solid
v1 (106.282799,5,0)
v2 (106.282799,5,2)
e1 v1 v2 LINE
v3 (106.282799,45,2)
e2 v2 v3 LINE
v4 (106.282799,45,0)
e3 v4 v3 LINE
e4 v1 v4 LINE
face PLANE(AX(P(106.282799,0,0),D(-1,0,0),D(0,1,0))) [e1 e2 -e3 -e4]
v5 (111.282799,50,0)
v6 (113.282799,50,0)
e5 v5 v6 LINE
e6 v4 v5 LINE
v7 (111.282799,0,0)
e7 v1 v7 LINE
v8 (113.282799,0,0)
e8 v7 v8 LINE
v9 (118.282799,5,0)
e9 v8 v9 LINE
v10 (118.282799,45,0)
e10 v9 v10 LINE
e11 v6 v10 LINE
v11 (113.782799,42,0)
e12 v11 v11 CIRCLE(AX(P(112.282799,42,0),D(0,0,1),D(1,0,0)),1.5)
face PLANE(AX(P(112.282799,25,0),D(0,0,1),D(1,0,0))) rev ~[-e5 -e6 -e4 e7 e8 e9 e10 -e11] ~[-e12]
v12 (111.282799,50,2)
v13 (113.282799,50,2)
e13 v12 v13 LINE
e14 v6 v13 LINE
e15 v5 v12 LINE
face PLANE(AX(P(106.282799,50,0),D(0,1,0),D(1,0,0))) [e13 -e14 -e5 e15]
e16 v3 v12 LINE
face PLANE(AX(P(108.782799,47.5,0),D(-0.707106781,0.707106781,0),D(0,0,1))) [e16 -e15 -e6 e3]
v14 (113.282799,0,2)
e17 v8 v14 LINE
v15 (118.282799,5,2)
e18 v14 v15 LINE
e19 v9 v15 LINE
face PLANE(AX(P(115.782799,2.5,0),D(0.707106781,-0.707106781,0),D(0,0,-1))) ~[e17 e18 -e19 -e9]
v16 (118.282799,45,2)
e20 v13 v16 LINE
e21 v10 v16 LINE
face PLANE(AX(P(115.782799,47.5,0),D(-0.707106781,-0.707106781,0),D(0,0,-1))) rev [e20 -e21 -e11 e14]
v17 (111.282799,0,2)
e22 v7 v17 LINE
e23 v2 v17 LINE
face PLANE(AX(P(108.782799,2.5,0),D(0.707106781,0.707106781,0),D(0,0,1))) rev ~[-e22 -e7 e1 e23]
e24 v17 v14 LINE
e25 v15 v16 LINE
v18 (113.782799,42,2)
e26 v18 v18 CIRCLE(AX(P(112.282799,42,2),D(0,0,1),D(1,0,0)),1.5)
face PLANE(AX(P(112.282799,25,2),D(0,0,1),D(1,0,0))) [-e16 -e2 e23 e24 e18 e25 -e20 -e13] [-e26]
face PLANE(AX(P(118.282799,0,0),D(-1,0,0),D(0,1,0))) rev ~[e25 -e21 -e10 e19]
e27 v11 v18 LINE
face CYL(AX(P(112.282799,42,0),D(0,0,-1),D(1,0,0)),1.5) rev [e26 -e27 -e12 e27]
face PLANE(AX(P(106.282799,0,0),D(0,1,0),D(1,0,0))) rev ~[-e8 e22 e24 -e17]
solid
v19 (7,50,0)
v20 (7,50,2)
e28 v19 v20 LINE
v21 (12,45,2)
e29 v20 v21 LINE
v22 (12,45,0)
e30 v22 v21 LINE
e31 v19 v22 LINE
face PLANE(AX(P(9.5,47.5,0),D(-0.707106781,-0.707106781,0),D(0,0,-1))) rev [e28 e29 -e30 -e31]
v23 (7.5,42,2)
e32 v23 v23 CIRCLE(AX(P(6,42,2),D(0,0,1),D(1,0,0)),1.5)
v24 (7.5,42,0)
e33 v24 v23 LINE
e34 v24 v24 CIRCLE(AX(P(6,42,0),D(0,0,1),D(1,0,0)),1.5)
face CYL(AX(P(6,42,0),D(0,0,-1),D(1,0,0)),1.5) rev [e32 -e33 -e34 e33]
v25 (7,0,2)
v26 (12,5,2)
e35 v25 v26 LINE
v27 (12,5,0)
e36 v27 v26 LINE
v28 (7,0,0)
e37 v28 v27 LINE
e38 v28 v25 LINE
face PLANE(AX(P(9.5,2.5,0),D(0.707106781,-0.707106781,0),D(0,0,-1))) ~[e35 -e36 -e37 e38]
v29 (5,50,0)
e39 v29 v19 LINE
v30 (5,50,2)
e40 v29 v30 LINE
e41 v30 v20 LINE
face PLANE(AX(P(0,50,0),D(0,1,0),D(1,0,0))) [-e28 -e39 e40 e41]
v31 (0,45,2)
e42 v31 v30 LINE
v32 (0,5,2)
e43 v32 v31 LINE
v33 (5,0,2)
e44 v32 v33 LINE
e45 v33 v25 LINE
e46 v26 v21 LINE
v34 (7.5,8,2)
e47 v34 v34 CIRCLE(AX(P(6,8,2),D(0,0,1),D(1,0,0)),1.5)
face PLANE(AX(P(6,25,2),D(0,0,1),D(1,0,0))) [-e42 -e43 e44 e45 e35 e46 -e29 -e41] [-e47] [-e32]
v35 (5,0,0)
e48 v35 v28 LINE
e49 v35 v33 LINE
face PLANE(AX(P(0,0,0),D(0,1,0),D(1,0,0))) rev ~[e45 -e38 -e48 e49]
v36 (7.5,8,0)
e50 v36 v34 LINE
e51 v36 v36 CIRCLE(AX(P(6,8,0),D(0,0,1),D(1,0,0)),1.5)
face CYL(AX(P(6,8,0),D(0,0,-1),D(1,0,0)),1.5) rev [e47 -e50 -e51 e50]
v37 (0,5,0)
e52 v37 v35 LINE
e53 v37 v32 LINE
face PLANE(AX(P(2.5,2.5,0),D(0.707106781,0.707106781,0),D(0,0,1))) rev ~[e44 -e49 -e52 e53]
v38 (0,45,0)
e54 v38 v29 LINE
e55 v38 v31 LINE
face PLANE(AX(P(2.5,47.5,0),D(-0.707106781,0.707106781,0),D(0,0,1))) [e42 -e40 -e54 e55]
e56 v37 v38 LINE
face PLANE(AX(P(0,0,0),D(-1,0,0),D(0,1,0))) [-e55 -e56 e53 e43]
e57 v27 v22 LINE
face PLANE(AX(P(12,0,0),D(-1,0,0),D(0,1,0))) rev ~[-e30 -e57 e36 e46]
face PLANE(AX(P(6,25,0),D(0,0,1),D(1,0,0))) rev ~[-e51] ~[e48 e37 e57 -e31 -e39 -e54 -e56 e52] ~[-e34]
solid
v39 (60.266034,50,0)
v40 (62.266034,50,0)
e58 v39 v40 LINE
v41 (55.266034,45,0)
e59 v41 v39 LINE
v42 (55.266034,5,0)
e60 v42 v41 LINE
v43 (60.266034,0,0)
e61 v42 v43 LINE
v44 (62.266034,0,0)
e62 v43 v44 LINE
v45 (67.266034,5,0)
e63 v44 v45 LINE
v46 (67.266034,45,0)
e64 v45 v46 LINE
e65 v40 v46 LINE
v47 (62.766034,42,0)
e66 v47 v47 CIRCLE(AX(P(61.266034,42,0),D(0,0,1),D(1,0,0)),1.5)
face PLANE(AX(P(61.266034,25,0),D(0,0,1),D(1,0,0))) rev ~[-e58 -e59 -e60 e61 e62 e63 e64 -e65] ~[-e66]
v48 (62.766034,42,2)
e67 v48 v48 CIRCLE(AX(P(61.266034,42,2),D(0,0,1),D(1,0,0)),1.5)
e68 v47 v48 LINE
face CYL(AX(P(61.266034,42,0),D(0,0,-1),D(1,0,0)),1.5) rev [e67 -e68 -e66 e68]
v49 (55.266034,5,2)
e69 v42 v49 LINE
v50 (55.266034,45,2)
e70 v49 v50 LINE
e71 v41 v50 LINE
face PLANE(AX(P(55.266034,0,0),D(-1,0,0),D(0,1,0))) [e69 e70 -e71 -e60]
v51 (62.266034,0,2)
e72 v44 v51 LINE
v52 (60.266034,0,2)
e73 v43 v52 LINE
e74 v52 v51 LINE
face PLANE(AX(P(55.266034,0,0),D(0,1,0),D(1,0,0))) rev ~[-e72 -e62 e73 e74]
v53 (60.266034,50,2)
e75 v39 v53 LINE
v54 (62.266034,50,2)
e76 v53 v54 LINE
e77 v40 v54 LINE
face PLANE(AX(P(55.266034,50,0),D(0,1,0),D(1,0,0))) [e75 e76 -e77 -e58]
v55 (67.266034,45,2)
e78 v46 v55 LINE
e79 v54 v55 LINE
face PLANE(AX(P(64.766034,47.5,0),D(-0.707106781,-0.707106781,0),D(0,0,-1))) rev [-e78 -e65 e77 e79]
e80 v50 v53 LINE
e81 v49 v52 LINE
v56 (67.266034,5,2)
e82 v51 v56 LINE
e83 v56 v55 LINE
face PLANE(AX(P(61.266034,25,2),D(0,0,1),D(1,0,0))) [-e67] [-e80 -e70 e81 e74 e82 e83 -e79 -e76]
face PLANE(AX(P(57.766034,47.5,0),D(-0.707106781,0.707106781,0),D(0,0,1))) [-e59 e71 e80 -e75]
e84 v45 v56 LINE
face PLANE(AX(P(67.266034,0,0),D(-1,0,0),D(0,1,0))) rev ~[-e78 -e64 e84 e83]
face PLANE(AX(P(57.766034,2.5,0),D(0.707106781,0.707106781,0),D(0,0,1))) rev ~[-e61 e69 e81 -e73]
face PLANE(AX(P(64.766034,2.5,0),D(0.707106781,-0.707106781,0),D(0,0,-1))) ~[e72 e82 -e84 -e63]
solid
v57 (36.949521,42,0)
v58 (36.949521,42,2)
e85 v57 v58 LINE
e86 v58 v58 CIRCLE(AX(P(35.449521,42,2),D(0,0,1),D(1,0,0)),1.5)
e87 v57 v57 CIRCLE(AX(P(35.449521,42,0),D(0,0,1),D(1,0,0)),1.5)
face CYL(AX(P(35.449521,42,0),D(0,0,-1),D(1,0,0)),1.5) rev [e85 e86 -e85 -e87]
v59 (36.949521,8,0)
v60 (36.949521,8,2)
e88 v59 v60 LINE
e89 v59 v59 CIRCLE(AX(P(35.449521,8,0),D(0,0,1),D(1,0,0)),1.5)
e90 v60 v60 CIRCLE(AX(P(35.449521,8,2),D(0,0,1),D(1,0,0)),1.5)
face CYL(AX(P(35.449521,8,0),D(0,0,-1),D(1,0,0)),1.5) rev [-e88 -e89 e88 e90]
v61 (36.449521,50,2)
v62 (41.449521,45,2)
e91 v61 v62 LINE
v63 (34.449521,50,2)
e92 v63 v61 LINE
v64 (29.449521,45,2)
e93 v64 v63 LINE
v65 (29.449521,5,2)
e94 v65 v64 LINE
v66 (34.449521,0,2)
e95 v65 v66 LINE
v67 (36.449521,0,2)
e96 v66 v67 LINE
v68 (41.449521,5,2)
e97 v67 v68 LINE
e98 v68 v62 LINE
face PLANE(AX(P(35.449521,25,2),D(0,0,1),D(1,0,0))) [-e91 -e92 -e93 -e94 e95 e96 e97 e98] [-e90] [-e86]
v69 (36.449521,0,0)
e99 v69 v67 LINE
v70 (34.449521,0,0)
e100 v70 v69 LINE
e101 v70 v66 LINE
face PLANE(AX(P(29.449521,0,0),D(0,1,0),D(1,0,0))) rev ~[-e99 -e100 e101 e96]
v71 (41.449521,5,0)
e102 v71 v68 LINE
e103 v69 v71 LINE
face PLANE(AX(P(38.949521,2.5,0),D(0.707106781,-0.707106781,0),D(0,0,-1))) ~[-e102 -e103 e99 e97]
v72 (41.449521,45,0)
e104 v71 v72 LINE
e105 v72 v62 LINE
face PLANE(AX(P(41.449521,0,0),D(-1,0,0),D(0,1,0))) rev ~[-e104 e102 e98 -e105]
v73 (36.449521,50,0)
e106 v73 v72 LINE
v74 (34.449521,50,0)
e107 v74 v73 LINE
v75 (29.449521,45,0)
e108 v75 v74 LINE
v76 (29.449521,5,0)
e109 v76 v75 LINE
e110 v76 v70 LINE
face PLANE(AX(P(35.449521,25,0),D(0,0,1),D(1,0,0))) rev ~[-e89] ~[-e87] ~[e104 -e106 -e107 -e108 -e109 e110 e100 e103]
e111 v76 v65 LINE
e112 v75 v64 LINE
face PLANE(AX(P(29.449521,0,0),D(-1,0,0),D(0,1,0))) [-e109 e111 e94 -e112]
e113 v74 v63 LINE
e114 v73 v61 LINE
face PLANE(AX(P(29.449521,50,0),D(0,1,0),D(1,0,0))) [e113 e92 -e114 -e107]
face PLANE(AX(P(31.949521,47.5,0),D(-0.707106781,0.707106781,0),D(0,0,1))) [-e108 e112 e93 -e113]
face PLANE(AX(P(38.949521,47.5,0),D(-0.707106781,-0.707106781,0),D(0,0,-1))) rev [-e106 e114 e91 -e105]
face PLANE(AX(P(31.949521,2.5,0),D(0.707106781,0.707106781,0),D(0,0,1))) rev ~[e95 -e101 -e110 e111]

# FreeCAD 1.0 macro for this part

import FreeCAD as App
import Part
import Sketcher

V = App.Vector
Q = App.Units.Quantity


def edges_at(feature, points):
    """Names of the edges that pass closest to the given points."""
    edges = feature.Shape.Edges
    near = lambda p: min(range(len(edges)), key=lambda i: edges[i].distToShape(Part.Vertex(*p))[0])
    return sorted({f"Edge{near(p) + 1}" for p in points})

doc = App.newDocument("Part")
body = doc.addObject("PartDesign::Body", "Body")
body.AllowCompound = True

sketch1 = body.newObject("Sketcher::SketchObject", "Sketch")
sketch1.AttachmentSupport = (doc.getObject("XY_Plane"), [""])
sketch1.MapMode = "FlatFace"
sketch1.addGeometry(Part.LineSegment(V(29.4, 50, 0), V(29.4, 0, 0)), False)
sketch1.addGeometry(Part.LineSegment(V(29.4, 0, 0), V(41.4, 0, 0)), False)
sketch1.addGeometry(Part.LineSegment(V(41.4, 0, 0), V(41.4, 50, 0)), False)
sketch1.addGeometry(Part.LineSegment(V(41.4, 50, 0), V(29.4, 50, 0)), False)
sketch1.addGeometry(Part.Circle(V(35.4, 8, 0), V(0, 0, 1), 1.5), False)
sketch1.addGeometry(Part.Circle(V(35.4, 42, 0), V(0, 0, 1), 1.5), False)
sketch1.addGeometry(Part.LineSegment(V(55.3, 50, 0), V(55.3, 0, 0)), False)
sketch1.addGeometry(Part.LineSegment(V(55.3, 0, 0), V(67.3, 0, 0)), False)
sketch1.addGeometry(Part.LineSegment(V(67.3, 0, 0), V(67.3, 50, 0)), False)
sketch1.addGeometry(Part.LineSegment(V(67.3, 50, 0), V(55.3, 50, 0)), False)
sketch1.addGeometry(Part.Circle(V(61.3, 42, 0), V(0, 0, 1), 1.5), False)
sketch1.addGeometry(Part.LineSegment(V(106.3, 50, 0), V(106.3, 0, 0)), False)
sketch1.addGeometry(Part.LineSegment(V(106.3, 0, 0), V(118.3, 0, 0)), False)
sketch1.addGeometry(Part.LineSegment(V(118.3, 0, 0), V(118.3, 50, 0)), False)
sketch1.addGeometry(Part.LineSegment(V(118.3, 50, 0), V(106.3, 50, 0)), False)
sketch1.addGeometry(Part.Circle(V(112.3, 42, 0), V(0, 0, 1), 1.5), False)
sketch1.addGeometry(Part.LineSegment(V(0, 50, 0), V(0, 0, 0)), False)
sketch1.addGeometry(Part.LineSegment(V(0, 0, 0), V(12, 0, 0)), False)
sketch1.addGeometry(Part.LineSegment(V(12, 0, 0), V(12, 50, 0)), False)
sketch1.addGeometry(Part.LineSegment(V(12, 50, 0), V(0, 50, 0)), False)
sketch1.addGeometry(Part.Circle(V(6, 8, 0), V(0, 0, 1), 1.5), False)
sketch1.addGeometry(Part.Circle(V(6, 42, 0), V(0, 0, 1), 1.5), False)
sketch1.addConstraint(Sketcher.Constraint("Coincident", 0, 2, 1, 1))
sketch1.addConstraint(Sketcher.Constraint("Coincident", 1, 2, 2, 1))
sketch1.addConstraint(Sketcher.Constraint("Coincident", 2, 2, 3, 1))
sketch1.addConstraint(Sketcher.Constraint("Coincident", 3, 2, 0, 1))
sketch1.addConstraint(Sketcher.Constraint("Coincident", 6, 2, 7, 1))
sketch1.addConstraint(Sketcher.Constraint("Coincident", 7, 2, 8, 1))
sketch1.addConstraint(Sketcher.Constraint("Coincident", 8, 2, 9, 1))
sketch1.addConstraint(Sketcher.Constraint("Coincident", 9, 2, 6, 1))
sketch1.addConstraint(Sketcher.Constraint("Coincident", 11, 2, 12, 1))
sketch1.addConstraint(Sketcher.Constraint("Coincident", 12, 2, 13, 1))
sketch1.addConstraint(Sketcher.Constraint("Coincident", 13, 2, 14, 1))
sketch1.addConstraint(Sketcher.Constraint("Coincident", 14, 2, 11, 1))
sketch1.addConstraint(Sketcher.Constraint("Coincident", 16, 2, 17, 1))
sketch1.addConstraint(Sketcher.Constraint("Coincident", 17, 2, 18, 1))
sketch1.addConstraint(Sketcher.Constraint("Coincident", 18, 2, 19, 1))
sketch1.addConstraint(Sketcher.Constraint("Coincident", 19, 2, 16, 1))
sketch1.addConstraint(Sketcher.Constraint("Vertical", 0))
sketch1.addConstraint(Sketcher.Constraint("Horizontal", 1))
sketch1.addConstraint(Sketcher.Constraint("Vertical", 2))
sketch1.addConstraint(Sketcher.Constraint("Horizontal", 3))
sketch1.addConstraint(Sketcher.Constraint("Vertical", 6))
sketch1.addConstraint(Sketcher.Constraint("Horizontal", 7))
sketch1.addConstraint(Sketcher.Constraint("Vertical", 8))
sketch1.addConstraint(Sketcher.Constraint("Horizontal", 9))
sketch1.addConstraint(Sketcher.Constraint("Vertical", 11))
sketch1.addConstraint(Sketcher.Constraint("Horizontal", 12))
sketch1.addConstraint(Sketcher.Constraint("Vertical", 13))
sketch1.addConstraint(Sketcher.Constraint("Horizontal", 14))
sketch1.addConstraint(Sketcher.Constraint("Vertical", 16))
sketch1.addConstraint(Sketcher.Constraint("Horizontal", 17))
sketch1.addConstraint(Sketcher.Constraint("Vertical", 18))
sketch1.addConstraint(Sketcher.Constraint("Horizontal", 19))
sketch1.addConstraint(Sketcher.Constraint("Coincident", 16, 2, -1, 1))
sketch1.addConstraint(Sketcher.Constraint("Equal", 4, 5))
sketch1.addConstraint(Sketcher.Constraint("Equal", 5, 10))
sketch1.addConstraint(Sketcher.Constraint("Equal", 10, 15))
sketch1.addConstraint(Sketcher.Constraint("Equal", 15, 20))
sketch1.addConstraint(Sketcher.Constraint("Equal", 20, 21))
sketch1.addConstraint(Sketcher.Constraint("PointOnObject", 0, 2, -1))
sketch1.addConstraint(Sketcher.Constraint("PointOnObject", 6, 2, -1))
sketch1.addConstraint(Sketcher.Constraint("PointOnObject", 11, 2, -1))
sketch1.addConstraint(Sketcher.Constraint("Horizontal", 5, 3, 10, 3))
sketch1.addConstraint(Sketcher.Constraint("Horizontal", 10, 3, 15, 3))
sketch1.addConstraint(Sketcher.Constraint("Horizontal", 4, 3, 20, 3))
sketch1.addConstraint(Sketcher.Constraint("Horizontal", 15, 3, 21, 3))
sketch1.addConstraint(Sketcher.Constraint("Horizontal", 3, 2, 8, 2))
sketch1.addConstraint(Sketcher.Constraint("Horizontal", 9, 2, 13, 2))
sketch1.addConstraint(Sketcher.Constraint("Horizontal", 14, 2, 18, 2))
sketch1.addConstraint(Sketcher.Constraint("Vertical", 4, 3, 5, 3))
sketch1.addConstraint(Sketcher.Constraint("Vertical", 20, 3, 21, 3))
sketch1.addConstraint(Sketcher.Constraint("Equal", 3, 7))
sketch1.addConstraint(Sketcher.Constraint("Equal", 9, 12))
sketch1.addConstraint(Sketcher.Constraint("Equal", 14, 17))
sketch1.addConstraint(Sketcher.Constraint("Diameter", 4, Q("3 mm")))
sketch1.addConstraint(Sketcher.Constraint("DistanceX", 1, 1, 1, 2, Q("12 mm")))
sketch1.addConstraint(Sketcher.Constraint("DistanceY", 0, 2, 0, 1, Q("50 mm")))
sketch1.addConstraint(Sketcher.Constraint("DistanceY", -1, 1, 4, 3, Q("8 mm")))
sketch1.addConstraint(Sketcher.Constraint("DistanceY", -1, 1, 5, 3, Q("42 mm")))
sketch1.addConstraint(Sketcher.Constraint("DistanceX", -1, 1, 20, 3, Q("6 mm")))
sketch1.addConstraint(Sketcher.Constraint("DistanceX", 0, 2, 4, 3, Q("6 mm")))
sketch1.addConstraint(Sketcher.Constraint("DistanceX", 6, 2, 10, 3, Q("6 mm")))
sketch1.addConstraint(Sketcher.Constraint("DistanceX", 11, 2, 15, 3, Q("6 mm")))
sketch1.addConstraint(Sketcher.Constraint("DistanceX", -1, 1, 15, 3, Q("112.282799 mm")))
sketch1.addConstraint(Sketcher.Constraint("DistanceX", -1, 1, 4, 3, Q("35.449521 mm")))
sketch1.addConstraint(Sketcher.Constraint("DistanceX", -1, 1, 10, 3, Q("61.266034 mm")))
pad1 = body.newObject("PartDesign::Pad", "Pad")
pad1.Profile = sketch1
pad1.Length = 2
doc.recompute()

chamfer = body.newObject("PartDesign::Chamfer", "Chamfer")
chamfer.Base = (pad1, edges_at(pad1, [
    (118.283, 0, 1),
    (67.266, 0, 1),
    (41.45, 0, 1),
    (12, 0, 1),
    (0, 0, 1),
    (29.45, 0, 1),
    (55.266, 0, 1),
    (106.283, 0, 1),
    (118.283, 50, 1),
    (67.266, 50, 1),
    (41.45, 50, 1),
    (12, 50, 1),
    (106.283, 50, 1),
    (55.266, 50, 1),
    (29.45, 50, 1),
    (0, 50, 1),
]))
chamfer.Size = 5

doc.recompute()
